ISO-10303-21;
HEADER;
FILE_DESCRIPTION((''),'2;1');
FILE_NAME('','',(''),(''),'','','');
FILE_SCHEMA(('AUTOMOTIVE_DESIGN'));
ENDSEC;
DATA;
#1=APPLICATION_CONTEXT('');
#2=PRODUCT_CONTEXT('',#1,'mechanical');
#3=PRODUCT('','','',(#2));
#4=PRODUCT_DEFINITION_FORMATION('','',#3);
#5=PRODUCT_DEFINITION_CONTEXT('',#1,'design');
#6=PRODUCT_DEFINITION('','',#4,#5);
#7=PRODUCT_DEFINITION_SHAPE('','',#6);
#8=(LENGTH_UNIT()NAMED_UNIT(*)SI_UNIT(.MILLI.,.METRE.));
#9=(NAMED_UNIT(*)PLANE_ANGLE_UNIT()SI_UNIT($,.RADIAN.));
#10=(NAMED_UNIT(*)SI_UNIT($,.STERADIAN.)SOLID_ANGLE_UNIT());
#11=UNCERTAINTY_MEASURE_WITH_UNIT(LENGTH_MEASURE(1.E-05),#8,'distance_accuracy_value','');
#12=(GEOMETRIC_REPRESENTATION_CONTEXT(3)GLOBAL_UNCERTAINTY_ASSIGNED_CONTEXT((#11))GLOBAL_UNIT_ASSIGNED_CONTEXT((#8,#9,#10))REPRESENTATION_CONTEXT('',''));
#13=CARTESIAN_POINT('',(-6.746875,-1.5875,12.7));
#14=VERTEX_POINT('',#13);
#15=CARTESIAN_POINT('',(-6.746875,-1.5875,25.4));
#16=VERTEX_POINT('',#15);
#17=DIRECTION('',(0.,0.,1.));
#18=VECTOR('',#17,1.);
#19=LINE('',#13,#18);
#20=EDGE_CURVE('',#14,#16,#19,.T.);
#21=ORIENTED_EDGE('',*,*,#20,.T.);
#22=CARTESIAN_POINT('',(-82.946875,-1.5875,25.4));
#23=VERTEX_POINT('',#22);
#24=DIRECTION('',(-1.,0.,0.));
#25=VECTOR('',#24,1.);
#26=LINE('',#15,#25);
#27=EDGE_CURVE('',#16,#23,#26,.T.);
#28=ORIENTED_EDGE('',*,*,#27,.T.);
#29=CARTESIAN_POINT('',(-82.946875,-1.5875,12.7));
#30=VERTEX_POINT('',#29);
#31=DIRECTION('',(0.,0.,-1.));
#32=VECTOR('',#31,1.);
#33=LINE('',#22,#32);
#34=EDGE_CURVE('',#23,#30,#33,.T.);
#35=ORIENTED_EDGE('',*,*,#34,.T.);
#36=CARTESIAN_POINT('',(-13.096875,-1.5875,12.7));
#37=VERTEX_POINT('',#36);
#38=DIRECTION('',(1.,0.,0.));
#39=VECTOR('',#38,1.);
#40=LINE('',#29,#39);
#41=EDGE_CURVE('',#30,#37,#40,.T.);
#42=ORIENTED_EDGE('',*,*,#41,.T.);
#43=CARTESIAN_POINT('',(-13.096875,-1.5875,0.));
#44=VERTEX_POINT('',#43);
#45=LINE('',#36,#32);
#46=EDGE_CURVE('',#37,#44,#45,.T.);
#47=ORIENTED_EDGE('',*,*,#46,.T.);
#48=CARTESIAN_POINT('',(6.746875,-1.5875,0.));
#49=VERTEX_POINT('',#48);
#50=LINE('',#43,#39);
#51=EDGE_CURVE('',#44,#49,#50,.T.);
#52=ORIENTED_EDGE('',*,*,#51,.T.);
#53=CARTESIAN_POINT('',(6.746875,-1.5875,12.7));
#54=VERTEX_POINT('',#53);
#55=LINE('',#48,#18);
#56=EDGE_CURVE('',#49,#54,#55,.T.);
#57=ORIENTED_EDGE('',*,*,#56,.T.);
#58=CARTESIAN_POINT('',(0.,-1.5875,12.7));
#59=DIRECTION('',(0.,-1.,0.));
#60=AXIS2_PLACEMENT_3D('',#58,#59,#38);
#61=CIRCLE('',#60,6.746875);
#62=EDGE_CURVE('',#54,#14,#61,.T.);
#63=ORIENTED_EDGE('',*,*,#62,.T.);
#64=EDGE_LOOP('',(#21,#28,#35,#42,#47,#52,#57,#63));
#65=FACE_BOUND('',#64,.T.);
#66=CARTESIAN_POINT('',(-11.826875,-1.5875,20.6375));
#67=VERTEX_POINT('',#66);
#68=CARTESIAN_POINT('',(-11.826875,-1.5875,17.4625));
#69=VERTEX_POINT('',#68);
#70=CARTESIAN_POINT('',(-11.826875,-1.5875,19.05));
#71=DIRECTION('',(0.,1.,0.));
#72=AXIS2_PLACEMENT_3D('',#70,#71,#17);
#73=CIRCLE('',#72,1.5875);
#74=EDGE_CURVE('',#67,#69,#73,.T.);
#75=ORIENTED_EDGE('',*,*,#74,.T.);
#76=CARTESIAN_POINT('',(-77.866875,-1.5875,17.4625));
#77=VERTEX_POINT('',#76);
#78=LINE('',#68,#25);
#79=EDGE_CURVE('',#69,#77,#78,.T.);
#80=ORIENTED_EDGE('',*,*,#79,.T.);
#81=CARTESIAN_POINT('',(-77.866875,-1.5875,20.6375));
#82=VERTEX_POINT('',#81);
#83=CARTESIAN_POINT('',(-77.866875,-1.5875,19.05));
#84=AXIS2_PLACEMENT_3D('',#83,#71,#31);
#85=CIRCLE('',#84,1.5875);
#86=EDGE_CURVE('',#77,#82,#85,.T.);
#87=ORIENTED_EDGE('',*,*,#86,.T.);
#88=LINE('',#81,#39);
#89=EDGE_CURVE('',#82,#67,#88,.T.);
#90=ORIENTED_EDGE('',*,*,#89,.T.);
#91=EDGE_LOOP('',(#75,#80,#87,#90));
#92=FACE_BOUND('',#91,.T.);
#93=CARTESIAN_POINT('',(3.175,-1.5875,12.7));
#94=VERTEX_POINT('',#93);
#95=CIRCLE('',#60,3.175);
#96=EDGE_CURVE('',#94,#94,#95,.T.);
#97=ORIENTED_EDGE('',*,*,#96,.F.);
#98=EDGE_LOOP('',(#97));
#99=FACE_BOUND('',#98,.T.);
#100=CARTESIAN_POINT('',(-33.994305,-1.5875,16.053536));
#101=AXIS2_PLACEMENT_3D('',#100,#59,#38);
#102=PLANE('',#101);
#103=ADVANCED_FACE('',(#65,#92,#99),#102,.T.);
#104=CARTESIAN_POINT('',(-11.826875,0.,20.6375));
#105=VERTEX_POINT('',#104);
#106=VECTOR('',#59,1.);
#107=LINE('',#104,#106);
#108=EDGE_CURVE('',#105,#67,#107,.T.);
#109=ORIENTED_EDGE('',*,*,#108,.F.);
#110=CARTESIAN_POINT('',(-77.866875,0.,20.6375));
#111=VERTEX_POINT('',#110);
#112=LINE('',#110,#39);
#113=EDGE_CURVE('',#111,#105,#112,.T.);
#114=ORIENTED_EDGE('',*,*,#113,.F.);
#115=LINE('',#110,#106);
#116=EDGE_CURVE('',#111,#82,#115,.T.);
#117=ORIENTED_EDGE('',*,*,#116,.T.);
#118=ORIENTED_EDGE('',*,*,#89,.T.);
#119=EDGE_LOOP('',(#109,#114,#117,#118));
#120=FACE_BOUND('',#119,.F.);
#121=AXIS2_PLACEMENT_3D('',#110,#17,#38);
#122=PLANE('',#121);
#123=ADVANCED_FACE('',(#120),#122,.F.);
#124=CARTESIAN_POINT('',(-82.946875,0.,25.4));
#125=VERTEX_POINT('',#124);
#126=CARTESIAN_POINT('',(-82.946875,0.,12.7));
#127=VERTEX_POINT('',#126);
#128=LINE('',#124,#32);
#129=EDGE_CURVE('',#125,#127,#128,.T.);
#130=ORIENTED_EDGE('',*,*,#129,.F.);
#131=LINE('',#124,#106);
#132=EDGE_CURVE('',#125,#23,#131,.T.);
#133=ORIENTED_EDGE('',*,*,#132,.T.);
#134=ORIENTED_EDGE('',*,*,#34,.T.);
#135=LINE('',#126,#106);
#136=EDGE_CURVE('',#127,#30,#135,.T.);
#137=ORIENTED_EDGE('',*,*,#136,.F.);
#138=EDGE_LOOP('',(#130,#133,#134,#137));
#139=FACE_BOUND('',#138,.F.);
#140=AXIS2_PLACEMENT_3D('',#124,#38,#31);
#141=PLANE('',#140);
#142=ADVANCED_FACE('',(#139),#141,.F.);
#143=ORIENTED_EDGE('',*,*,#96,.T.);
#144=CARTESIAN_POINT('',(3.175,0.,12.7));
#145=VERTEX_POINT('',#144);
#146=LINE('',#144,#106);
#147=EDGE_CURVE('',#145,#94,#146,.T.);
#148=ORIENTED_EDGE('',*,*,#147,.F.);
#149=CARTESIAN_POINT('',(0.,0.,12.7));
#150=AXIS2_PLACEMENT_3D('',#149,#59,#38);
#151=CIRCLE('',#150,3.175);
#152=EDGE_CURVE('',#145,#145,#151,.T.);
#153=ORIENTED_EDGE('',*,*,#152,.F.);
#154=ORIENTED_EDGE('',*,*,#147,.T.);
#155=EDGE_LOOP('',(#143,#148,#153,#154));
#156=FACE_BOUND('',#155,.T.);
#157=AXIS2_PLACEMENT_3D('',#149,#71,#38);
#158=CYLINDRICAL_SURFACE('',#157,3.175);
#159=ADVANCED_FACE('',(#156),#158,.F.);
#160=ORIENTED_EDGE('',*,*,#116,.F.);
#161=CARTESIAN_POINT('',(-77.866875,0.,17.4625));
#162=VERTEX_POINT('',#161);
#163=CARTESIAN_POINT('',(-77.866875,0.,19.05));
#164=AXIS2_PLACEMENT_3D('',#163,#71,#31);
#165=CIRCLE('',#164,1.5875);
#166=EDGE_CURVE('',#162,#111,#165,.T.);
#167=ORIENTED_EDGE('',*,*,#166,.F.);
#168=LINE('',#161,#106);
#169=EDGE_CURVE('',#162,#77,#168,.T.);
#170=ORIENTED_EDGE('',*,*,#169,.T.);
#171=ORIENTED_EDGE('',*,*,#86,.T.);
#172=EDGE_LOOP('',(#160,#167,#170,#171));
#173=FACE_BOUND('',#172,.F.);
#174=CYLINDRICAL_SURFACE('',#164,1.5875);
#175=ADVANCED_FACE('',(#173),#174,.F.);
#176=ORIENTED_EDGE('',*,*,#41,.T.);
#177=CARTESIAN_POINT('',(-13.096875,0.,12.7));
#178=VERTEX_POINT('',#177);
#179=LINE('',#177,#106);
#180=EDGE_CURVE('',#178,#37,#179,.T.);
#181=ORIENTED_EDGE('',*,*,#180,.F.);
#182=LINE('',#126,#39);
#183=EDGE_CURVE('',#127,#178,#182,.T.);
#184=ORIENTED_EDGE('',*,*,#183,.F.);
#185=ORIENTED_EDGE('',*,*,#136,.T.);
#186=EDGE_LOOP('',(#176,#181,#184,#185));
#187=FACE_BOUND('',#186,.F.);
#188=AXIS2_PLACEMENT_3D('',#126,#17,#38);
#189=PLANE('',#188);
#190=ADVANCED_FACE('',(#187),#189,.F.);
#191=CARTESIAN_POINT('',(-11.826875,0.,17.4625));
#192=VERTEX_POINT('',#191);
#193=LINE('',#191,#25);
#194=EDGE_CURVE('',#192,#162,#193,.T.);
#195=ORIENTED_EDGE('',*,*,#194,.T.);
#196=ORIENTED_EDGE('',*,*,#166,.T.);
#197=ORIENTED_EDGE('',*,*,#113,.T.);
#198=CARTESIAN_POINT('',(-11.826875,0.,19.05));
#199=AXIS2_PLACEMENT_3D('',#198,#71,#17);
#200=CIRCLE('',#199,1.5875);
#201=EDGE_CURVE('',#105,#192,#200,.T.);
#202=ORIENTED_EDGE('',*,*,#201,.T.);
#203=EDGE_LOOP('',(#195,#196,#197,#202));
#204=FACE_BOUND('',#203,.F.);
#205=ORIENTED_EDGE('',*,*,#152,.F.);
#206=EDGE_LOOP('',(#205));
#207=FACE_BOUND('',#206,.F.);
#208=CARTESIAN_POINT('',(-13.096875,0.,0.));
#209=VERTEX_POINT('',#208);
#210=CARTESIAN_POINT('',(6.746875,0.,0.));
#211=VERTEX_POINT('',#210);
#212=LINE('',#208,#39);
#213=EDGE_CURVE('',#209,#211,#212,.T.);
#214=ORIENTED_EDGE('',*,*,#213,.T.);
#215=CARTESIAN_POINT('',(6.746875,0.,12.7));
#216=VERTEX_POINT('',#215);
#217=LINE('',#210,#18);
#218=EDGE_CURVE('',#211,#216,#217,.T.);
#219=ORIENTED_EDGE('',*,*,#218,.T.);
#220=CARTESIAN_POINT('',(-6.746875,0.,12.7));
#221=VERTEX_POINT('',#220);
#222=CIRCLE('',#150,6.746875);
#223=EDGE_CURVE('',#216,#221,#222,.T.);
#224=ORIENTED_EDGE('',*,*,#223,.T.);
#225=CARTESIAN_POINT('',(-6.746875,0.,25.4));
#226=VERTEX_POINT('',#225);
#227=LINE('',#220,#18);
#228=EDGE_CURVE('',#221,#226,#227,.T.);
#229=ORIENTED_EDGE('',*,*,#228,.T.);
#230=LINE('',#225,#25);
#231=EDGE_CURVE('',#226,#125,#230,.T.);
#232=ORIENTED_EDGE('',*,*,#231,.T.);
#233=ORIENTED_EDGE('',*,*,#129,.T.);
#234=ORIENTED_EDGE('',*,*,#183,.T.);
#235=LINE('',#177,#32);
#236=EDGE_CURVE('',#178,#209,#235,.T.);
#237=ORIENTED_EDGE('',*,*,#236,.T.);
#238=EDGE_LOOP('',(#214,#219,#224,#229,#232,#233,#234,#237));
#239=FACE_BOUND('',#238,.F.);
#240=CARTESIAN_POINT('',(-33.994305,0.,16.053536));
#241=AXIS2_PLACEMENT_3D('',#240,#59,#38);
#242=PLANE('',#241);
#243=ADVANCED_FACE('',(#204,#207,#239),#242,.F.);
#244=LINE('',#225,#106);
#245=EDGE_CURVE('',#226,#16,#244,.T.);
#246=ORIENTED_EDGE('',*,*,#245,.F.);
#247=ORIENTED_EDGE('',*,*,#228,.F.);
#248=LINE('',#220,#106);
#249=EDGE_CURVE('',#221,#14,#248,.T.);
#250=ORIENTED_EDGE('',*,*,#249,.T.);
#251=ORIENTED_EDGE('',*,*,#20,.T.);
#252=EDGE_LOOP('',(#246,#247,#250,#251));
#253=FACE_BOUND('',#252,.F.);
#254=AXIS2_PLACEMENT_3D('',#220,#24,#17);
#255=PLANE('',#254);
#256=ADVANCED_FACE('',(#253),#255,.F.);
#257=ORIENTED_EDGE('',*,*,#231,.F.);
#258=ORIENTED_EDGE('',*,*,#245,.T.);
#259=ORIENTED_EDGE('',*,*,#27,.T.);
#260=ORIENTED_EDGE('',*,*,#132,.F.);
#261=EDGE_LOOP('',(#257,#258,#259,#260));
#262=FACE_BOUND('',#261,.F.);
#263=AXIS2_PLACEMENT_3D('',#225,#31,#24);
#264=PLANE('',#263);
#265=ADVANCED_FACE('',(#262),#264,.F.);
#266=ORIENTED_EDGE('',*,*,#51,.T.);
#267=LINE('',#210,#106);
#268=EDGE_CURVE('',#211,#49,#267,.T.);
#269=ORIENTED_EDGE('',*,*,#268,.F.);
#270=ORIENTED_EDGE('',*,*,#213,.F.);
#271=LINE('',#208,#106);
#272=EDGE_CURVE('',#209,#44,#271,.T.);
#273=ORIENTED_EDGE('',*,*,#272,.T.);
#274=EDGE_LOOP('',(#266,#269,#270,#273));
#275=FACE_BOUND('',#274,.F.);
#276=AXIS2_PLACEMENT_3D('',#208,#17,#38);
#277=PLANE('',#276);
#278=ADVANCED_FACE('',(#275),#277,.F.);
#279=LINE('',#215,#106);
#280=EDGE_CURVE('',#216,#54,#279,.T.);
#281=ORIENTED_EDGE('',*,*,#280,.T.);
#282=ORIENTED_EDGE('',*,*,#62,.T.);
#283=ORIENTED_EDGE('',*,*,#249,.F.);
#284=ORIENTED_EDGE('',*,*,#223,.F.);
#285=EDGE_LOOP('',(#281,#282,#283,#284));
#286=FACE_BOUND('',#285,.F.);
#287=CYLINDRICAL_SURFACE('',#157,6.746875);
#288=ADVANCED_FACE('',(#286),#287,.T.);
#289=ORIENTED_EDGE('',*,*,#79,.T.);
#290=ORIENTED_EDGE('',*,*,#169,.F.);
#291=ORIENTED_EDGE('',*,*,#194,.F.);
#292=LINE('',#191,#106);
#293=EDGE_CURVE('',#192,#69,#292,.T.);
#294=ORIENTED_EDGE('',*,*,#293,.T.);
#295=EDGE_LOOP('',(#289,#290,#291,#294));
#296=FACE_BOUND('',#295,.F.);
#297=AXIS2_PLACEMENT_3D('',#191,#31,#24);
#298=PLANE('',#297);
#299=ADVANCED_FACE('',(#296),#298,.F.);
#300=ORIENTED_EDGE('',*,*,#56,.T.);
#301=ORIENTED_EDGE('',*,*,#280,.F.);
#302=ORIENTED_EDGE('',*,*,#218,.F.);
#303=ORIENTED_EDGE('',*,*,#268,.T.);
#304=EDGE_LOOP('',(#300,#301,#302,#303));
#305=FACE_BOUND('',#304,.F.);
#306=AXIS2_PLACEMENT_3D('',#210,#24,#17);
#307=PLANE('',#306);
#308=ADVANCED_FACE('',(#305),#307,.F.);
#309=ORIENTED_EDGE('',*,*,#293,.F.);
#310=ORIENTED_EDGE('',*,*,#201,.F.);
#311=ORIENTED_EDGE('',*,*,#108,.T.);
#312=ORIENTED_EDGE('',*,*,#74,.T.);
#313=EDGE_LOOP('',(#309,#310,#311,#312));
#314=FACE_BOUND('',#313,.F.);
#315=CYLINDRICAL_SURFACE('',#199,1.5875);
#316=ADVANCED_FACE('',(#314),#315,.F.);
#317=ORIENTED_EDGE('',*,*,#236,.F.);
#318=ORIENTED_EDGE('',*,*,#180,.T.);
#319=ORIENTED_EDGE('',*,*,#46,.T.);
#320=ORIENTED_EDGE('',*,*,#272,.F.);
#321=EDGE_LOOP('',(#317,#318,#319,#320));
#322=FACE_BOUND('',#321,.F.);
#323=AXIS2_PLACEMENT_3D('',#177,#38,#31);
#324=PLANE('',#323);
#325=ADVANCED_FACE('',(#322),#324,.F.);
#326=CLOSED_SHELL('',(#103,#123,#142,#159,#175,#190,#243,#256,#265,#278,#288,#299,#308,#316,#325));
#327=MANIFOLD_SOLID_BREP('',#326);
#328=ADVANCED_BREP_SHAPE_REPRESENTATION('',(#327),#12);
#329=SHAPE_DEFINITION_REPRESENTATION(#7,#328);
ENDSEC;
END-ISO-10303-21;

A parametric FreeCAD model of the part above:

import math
import FreeCAD as App
import Part
import Sketcher

V = App.Vector
Q = App.Units.Quantity

doc = App.newDocument("Part")
body = doc.addObject("PartDesign::Body", "Body")

# Sketch on XZ plane
sketch1 = body.newObject("Sketcher::SketchObject", "Sketch")
sketch1.AttachmentSupport = (doc.getObject("XZ_Plane"), [""])
sketch1.MapMode = "FlatFace"
sketch1.addGeometry([
    Part.LineSegment(V(-13.1, 0, 0), V(6.7, 0, 0)),  # 0
    Part.LineSegment(V(6.7, 0, 0), V(6.7, 12.7, 0)),  # 1
    Part.ArcOfCircle(Part.Circle(V(0, 12.7, 0), V(0, 0, 1), 6.7), math.radians(0), math.radians(180)),  # 2
    Part.LineSegment(V(-6.7, 12.7, 0), V(-6.7, 25.4, 0)),  # 3
    Part.LineSegment(V(-6.7, 25.4, 0), V(-82.9, 25.4, 0)),  # 4
    Part.LineSegment(V(-82.9, 25.4, 0), V(-82.9, 12.7, 0)),  # 5
    Part.LineSegment(V(-82.9, 12.7, 0), V(-13.1, 12.7, 0)),  # 6
    Part.LineSegment(V(-13.1, 12.7, 0), V(-13.1, 0, 0)),  # 7
    Part.Circle(V(0, 12.7, 0), V(0, 0, 1), 3.2),  # 8
    Part.LineSegment(V(-11.8, 17.5, 0), V(-77.9, 17.5, 0)),  # 9
    Part.ArcOfCircle(Part.Circle(V(-77.9, 19.1, 0), V(0, 0, 1), 1.6), math.radians(90), math.radians(270)),  # 10
    Part.LineSegment(V(-77.9, 20.6, 0), V(-11.8, 20.6, 0)),  # 11
    Part.ArcOfCircle(Part.Circle(V(-11.8, 19.1, 0), V(0, 0, 1), 1.6), math.radians(-90), math.radians(90)),  # 12
], False)
sketch1.addConstraint([
    Sketcher.Constraint("Coincident", 0, 2, 1, 1),
    Sketcher.Constraint("Tangent", 1, 2, 2, 1),
    Sketcher.Constraint("Tangent", 2, 2, 3, 1),
    Sketcher.Constraint("Coincident", 3, 2, 4, 1),
    Sketcher.Constraint("Coincident", 4, 2, 5, 1),
    Sketcher.Constraint("Coincident", 5, 2, 6, 1),
    Sketcher.Constraint("Coincident", 6, 2, 7, 1),
    Sketcher.Constraint("Coincident", 7, 2, 0, 1),
    Sketcher.Constraint("Tangent", 9, 2, 10, 2),
    Sketcher.Constraint("Tangent", 10, 1, 11, 1),
    Sketcher.Constraint("Tangent", 11, 2, 12, 2),
    Sketcher.Constraint("Tangent", 12, 1, 9, 1),
    Sketcher.Constraint("Horizontal", 0),
    Sketcher.Constraint("Vertical", 1),
    Sketcher.Constraint("Vertical", 3),
    Sketcher.Constraint("Horizontal", 4),
    Sketcher.Constraint("Vertical", 5),
    Sketcher.Constraint("Horizontal", 6),
    Sketcher.Constraint("Vertical", 7),
    Sketcher.Constraint("Horizontal", 9),
    Sketcher.Constraint("Horizontal", 11),
    Sketcher.Constraint("Coincident", 8, 3, 2, 3),
    Sketcher.Constraint("PointOnObject", 2, 3, -2),
    Sketcher.Constraint("PointOnObject", 0, 2, -1),
    Sketcher.Constraint("Horizontal", 2, 2, 5, 2),
    Sketcher.Constraint("Equal", 1, 3),
    Sketcher.Constraint("Diameter", 8, Q("0.25 in")),
    Sketcher.Constraint("DistanceX", 4, 2, 4, 1, Q("3 in")),
    Sketcher.Constraint("DistanceX", 9, 2, 9, 1, Q("2.6 in")),
    Sketcher.Constraint("DistanceY", 1, 1, 1, 2, Q("0.5 in")),
    Sketcher.Constraint("Radius", 2, Q("0.265625 in")),
    Sketcher.Constraint("Radius", 10, Q("0.0625 in")),
    Sketcher.Constraint("DistanceX", 6, 1, 6, 2, Q("2.75 in")),
    Sketcher.Constraint("DistanceX", 12, 3, 2, 2, Q("0.2 in")),
    Sketcher.Constraint("DistanceY", -1, 1, 10, 3, Q("0.75 in")),
])
pad1 = body.newObject("PartDesign::Pad", "Pad")
pad1.Profile = sketch1
pad1.Length = Q("0.0625 in")

doc.recompute()
